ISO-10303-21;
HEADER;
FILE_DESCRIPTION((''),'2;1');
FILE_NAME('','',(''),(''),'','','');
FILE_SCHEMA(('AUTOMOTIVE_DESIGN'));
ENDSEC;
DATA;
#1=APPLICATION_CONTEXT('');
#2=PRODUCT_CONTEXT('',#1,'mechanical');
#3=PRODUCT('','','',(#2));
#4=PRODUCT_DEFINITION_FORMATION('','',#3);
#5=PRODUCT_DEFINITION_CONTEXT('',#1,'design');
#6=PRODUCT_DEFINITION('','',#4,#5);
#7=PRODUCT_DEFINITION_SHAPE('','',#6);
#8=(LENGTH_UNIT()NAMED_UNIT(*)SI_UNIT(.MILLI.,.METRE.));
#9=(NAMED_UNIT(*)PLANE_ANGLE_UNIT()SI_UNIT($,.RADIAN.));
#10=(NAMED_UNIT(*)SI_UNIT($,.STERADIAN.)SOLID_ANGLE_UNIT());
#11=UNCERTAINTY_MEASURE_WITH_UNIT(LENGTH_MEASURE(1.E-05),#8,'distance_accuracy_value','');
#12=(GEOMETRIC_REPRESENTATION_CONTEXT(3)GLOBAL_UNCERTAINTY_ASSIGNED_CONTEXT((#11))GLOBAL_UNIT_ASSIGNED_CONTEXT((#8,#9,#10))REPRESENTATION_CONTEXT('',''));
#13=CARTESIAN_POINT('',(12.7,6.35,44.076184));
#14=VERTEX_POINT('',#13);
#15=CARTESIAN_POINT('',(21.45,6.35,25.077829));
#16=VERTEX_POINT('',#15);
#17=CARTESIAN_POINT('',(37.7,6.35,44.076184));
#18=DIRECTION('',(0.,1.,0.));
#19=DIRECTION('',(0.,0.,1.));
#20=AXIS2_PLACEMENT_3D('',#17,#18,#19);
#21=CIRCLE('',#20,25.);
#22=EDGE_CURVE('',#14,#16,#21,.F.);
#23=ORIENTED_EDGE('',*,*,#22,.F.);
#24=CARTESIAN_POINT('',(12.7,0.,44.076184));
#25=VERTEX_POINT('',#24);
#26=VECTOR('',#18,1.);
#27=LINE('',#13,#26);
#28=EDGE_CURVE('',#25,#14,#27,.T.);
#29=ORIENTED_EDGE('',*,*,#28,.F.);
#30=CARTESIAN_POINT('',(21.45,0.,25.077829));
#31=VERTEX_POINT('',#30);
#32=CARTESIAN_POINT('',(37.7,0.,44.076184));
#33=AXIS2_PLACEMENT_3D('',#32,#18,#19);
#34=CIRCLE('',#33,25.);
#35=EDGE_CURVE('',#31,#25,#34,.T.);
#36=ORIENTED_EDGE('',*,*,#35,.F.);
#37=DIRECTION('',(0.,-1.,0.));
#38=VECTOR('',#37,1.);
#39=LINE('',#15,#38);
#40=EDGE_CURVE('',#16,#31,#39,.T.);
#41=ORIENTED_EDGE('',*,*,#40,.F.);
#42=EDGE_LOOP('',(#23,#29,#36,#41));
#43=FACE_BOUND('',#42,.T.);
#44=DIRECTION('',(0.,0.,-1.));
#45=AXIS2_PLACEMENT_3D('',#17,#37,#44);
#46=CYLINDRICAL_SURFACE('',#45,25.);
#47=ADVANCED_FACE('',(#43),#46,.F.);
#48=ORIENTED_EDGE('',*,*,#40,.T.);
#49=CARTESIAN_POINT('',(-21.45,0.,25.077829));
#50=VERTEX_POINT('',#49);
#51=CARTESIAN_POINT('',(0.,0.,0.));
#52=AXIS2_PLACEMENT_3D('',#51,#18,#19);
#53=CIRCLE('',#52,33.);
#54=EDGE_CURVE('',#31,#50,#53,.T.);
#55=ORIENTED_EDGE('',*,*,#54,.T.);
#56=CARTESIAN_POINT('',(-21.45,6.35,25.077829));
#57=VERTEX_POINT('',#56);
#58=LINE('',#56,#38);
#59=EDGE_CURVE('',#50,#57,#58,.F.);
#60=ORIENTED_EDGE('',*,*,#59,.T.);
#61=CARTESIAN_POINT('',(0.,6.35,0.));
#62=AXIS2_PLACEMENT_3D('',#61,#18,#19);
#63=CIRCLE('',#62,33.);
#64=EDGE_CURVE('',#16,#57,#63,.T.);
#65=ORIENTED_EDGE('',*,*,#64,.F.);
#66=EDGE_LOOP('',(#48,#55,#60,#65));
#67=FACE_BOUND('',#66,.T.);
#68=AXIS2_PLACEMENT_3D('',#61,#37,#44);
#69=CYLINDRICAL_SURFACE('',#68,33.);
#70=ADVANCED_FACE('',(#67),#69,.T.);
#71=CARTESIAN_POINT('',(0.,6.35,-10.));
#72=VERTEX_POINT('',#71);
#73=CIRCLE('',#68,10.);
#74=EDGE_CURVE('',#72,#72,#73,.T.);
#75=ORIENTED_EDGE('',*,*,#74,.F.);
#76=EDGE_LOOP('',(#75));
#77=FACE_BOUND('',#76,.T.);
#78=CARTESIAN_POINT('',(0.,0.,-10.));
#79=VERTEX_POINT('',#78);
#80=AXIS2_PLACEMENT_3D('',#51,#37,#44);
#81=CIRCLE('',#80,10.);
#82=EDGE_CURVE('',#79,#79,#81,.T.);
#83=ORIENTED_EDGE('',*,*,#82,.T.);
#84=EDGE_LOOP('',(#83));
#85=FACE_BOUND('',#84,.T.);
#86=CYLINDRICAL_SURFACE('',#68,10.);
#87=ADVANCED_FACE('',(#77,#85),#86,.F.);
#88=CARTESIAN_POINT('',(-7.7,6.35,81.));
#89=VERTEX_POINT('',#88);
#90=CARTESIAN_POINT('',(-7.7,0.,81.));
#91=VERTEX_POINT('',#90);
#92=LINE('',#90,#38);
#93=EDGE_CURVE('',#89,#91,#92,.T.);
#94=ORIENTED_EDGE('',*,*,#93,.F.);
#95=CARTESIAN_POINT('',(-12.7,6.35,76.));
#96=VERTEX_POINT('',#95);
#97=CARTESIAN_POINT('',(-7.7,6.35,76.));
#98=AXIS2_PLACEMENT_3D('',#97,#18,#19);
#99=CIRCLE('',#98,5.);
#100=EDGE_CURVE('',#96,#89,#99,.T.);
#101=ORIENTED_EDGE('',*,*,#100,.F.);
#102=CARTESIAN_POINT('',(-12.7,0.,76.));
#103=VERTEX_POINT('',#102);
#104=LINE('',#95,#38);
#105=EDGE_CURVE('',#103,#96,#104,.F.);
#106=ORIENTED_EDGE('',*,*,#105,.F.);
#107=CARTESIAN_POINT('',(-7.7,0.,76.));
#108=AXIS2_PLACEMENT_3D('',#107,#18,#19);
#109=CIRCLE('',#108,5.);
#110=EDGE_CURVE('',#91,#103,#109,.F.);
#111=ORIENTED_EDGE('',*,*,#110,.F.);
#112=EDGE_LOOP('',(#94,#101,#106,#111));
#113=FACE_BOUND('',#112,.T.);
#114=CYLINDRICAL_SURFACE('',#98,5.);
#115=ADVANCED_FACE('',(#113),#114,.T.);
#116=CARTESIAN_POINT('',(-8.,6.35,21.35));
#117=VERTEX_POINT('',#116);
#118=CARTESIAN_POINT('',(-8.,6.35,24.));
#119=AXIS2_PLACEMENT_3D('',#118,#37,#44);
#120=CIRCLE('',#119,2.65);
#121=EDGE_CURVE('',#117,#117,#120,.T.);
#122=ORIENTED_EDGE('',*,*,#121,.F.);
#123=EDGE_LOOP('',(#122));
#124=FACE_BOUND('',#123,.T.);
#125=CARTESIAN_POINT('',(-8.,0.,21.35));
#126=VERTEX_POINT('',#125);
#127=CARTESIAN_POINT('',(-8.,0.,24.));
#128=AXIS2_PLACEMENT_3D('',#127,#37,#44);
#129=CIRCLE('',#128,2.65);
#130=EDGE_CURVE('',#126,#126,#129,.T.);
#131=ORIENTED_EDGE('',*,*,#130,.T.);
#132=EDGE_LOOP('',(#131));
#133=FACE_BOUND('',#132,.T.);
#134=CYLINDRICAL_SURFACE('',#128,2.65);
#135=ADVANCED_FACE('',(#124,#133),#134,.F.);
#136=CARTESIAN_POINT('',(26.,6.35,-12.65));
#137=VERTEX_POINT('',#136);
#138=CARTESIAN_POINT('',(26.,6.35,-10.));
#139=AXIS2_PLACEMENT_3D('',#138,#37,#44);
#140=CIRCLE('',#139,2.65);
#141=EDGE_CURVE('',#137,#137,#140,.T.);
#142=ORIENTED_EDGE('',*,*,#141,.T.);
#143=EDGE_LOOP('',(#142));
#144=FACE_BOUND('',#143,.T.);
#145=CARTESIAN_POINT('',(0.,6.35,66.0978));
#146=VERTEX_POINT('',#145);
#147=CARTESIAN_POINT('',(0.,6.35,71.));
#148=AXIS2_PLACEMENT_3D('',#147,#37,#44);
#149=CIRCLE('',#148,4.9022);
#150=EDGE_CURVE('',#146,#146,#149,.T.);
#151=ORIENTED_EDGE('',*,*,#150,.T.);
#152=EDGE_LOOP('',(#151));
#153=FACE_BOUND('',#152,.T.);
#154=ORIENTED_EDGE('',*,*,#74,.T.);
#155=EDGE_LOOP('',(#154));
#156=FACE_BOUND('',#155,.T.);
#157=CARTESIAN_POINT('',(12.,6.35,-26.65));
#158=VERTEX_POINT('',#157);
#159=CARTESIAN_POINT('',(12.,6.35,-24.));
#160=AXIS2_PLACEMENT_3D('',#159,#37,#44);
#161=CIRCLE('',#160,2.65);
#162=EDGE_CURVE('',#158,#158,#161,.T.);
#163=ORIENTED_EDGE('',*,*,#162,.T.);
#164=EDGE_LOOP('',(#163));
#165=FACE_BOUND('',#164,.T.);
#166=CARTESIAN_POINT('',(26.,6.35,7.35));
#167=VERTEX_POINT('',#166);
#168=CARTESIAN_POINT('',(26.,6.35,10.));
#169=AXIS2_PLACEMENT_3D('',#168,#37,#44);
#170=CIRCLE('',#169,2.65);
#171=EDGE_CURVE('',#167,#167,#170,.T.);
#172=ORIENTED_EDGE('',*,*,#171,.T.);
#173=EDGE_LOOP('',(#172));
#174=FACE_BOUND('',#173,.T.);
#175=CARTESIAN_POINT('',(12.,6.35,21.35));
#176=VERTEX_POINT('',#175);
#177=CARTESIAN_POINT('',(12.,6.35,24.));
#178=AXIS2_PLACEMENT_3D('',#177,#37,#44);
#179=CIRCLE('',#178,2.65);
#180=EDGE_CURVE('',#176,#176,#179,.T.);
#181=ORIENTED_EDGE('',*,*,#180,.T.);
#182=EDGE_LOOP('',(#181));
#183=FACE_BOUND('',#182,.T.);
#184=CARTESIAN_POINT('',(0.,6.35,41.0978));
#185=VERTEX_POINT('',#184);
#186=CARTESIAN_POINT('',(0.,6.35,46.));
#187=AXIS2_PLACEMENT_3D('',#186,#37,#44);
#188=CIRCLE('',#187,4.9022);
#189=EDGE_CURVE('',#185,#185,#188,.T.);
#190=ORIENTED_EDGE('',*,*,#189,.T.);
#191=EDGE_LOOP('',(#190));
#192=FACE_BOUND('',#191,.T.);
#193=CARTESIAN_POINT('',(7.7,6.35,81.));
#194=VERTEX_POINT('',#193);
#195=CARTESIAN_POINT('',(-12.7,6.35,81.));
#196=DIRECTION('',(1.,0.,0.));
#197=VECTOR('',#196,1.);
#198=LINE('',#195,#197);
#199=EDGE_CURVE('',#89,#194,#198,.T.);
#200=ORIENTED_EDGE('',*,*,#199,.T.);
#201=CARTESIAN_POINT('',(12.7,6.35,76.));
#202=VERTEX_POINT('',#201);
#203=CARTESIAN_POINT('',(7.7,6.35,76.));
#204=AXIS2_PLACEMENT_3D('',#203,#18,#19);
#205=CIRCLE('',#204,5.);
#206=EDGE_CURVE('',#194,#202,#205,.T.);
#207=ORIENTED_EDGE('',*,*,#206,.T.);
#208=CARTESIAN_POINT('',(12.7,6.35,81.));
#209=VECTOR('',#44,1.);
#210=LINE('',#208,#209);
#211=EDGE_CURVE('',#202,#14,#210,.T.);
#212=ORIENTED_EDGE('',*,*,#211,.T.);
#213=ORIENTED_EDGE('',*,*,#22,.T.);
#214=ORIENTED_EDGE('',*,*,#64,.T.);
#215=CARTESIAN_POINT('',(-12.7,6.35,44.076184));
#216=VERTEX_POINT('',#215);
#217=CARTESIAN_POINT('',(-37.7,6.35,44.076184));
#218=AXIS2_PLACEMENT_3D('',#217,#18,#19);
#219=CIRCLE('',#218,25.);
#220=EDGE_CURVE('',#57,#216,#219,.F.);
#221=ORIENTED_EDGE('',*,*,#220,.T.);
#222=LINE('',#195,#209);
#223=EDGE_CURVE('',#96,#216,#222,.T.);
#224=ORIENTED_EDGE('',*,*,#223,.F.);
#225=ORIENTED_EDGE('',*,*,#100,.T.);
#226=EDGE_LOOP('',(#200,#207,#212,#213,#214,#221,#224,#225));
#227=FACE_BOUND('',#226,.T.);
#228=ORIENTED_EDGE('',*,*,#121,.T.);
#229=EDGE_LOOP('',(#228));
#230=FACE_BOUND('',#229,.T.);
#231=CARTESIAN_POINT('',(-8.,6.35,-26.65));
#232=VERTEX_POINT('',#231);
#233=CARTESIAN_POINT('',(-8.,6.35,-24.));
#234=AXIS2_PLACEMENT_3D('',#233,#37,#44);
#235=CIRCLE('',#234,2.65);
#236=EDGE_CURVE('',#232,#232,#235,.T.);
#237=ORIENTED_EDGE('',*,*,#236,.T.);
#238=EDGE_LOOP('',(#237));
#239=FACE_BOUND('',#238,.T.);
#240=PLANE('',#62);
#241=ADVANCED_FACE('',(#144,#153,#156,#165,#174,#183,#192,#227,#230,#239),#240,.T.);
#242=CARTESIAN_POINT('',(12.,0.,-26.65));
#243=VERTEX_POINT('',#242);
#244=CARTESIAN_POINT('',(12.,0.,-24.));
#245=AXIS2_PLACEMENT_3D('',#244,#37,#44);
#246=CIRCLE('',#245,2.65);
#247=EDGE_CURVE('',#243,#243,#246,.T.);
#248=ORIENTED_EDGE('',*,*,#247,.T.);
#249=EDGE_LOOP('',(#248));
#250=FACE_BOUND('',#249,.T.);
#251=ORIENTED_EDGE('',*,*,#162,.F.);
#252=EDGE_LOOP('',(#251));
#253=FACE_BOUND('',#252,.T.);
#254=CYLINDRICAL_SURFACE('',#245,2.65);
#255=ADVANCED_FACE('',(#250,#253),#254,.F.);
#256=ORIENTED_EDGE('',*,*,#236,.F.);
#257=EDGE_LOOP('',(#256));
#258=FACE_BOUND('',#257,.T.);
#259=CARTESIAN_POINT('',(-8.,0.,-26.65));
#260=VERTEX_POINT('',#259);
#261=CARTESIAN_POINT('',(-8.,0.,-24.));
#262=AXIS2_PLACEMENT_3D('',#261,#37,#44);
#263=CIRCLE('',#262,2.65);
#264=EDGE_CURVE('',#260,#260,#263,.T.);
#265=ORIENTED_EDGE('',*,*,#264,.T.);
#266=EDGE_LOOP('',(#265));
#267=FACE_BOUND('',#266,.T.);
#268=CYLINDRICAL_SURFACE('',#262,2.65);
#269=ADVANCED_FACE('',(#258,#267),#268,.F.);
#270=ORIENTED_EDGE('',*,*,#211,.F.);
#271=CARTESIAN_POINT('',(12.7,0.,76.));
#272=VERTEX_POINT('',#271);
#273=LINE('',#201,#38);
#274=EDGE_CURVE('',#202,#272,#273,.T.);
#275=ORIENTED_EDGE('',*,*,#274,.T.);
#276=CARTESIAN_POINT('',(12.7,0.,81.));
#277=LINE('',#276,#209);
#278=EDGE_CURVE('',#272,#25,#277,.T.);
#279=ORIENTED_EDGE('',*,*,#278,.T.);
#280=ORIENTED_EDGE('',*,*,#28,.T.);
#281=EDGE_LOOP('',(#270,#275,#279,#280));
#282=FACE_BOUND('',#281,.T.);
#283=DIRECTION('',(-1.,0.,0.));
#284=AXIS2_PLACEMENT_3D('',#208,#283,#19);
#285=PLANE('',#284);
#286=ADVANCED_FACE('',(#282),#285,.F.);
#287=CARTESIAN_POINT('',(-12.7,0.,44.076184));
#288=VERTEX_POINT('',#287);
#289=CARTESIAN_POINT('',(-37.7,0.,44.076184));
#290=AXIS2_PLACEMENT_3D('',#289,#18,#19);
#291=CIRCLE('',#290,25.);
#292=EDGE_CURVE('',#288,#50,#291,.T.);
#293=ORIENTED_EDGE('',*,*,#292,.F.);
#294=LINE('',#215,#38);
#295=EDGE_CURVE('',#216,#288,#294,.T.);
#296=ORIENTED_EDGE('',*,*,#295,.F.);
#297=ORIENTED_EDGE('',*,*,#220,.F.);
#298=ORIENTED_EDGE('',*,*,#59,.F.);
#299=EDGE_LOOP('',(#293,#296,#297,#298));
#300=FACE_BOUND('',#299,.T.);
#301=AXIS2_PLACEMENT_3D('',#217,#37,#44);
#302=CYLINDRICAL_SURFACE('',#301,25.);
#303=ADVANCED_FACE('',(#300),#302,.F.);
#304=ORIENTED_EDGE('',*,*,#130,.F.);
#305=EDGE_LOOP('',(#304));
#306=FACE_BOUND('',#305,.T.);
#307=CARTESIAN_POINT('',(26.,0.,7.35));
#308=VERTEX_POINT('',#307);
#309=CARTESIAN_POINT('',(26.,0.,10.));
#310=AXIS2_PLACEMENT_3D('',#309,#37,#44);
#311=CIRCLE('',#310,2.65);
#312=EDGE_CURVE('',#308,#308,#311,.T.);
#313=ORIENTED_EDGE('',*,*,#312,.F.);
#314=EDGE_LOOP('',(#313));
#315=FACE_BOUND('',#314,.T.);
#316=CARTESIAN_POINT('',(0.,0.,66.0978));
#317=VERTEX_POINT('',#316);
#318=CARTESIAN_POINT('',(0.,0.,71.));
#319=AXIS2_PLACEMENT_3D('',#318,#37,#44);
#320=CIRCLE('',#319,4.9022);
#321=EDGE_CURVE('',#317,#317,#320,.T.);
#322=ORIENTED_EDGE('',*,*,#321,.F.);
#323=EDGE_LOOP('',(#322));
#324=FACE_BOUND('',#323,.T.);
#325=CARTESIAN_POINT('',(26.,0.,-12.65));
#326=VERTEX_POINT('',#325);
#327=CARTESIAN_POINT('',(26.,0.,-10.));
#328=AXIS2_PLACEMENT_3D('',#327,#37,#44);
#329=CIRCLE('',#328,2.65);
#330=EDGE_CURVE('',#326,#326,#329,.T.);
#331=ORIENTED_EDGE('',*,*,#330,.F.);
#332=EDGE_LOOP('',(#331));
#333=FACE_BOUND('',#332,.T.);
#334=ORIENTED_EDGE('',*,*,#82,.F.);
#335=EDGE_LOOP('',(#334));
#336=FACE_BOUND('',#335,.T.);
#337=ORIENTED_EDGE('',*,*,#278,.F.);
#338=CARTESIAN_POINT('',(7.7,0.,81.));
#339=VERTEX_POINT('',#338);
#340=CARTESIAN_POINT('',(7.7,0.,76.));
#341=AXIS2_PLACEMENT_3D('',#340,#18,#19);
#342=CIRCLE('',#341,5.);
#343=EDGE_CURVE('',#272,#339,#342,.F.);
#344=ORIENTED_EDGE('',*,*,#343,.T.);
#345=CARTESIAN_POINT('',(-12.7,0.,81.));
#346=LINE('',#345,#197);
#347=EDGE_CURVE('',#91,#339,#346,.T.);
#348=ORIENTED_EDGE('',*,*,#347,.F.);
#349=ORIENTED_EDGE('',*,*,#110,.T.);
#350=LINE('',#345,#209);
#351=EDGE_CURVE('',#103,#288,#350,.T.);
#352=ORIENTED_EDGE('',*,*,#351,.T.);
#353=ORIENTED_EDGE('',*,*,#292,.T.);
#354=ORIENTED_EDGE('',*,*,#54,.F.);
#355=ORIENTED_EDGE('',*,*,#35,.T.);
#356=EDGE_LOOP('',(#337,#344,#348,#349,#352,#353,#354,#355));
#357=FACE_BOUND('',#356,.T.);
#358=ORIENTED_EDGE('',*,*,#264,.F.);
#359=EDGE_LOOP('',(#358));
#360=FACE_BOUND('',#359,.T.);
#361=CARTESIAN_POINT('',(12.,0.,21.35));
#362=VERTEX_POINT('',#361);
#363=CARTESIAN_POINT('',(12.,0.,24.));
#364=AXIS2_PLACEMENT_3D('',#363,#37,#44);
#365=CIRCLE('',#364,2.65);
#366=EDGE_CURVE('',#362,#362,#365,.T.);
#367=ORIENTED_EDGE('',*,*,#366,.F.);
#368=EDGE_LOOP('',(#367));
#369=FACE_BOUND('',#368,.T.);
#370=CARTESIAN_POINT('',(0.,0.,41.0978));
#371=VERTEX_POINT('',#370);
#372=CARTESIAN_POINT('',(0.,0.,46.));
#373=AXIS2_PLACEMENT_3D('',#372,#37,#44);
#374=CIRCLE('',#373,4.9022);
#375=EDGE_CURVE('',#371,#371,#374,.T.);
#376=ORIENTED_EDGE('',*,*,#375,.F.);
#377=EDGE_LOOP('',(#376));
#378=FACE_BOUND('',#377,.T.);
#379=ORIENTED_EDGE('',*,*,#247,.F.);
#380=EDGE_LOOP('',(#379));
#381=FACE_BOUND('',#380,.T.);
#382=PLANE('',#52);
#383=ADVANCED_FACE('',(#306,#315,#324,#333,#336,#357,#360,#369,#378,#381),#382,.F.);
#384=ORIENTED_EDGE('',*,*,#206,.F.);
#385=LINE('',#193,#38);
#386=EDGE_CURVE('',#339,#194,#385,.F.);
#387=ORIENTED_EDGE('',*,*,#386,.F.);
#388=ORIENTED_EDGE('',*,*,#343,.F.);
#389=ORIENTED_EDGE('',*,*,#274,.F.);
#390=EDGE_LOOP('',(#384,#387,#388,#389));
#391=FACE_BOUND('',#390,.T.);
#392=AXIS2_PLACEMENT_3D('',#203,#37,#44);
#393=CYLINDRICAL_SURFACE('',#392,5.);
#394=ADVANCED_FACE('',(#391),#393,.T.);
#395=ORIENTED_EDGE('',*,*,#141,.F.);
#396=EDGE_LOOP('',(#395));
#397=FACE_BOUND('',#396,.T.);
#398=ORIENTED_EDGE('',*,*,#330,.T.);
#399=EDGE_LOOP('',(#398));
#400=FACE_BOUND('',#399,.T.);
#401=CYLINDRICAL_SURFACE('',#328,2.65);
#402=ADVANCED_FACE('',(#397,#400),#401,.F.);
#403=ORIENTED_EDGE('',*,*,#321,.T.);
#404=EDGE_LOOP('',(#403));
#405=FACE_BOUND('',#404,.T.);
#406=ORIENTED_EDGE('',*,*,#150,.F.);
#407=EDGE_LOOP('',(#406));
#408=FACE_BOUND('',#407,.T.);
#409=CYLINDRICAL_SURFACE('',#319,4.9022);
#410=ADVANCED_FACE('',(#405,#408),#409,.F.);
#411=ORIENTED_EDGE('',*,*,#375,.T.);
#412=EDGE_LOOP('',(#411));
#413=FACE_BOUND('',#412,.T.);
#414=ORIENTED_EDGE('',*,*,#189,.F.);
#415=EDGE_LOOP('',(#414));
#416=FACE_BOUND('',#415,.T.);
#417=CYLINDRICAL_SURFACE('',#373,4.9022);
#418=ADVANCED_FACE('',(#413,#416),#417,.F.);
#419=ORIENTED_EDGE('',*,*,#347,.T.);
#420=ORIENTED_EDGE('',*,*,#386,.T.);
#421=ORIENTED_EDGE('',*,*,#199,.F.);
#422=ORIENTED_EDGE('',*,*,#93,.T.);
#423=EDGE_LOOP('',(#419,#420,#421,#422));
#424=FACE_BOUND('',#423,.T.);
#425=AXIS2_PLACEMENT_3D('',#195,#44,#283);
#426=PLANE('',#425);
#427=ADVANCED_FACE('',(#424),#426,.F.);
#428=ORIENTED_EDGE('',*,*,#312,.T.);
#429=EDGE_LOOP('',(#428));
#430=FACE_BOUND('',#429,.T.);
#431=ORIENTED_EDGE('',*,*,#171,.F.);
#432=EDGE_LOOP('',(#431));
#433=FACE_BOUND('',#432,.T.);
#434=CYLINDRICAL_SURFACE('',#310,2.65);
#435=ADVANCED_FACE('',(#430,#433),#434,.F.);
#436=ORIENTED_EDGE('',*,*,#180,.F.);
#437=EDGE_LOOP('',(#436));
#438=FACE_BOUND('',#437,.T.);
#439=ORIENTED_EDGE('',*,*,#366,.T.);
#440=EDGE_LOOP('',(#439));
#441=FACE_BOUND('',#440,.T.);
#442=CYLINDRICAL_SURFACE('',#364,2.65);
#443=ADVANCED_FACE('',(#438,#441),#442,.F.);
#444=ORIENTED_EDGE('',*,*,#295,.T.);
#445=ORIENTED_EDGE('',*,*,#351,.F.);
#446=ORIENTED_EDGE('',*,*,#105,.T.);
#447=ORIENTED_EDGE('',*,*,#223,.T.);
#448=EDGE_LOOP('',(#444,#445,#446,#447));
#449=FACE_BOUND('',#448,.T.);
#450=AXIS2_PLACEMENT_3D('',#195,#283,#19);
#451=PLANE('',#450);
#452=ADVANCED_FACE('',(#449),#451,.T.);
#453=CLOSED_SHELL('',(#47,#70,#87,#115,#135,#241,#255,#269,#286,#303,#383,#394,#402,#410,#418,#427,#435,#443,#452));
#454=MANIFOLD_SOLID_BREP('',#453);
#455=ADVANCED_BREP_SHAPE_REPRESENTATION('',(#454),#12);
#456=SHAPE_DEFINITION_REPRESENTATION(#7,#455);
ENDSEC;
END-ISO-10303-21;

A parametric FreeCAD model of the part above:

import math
import FreeCAD as App
import Part
import Sketcher
Q = App.Units.Quantity


def edges_at(feature, points):
    """Names of the edges that pass closest to the given points."""
    edges = feature.Shape.Edges
    near = lambda p: min(range(len(edges)), key=lambda i: edges[i].distToShape(Part.Vertex(*p))[0])
    return sorted({f"Edge{near(p) + 1}" for p in points})

doc = App.newDocument("Part")
body = doc.addObject("PartDesign::Body", "Body")

sketch1 = body.newObject("Sketcher::SketchObject", "Sketch")
sketch1.AttachmentSupport = (doc.getObject("XZ_Plane"), [""])
sketch1.MapMode = "FlatFace"
sketch1.addGeometry(Part.LineSegment(App.Vector(-13, 81, 0), App.Vector(13, 81, 0)), False)
sketch1.addGeometry(Part.LineSegment(App.Vector(13, 81, 0), App.Vector(13, 30, 0)), False)
sketch1.addGeometry(Part.ArcOfCircle(Part.Circle(App.Vector(0, 0, 0), App.Vector(0, 0, 1), 33), math.radians(113), math.radians(427)), False)
sketch1.addGeometry(Part.LineSegment(App.Vector(-13, 30, 0), App.Vector(-13, 81, 0)), False)
sketch1.addConstraint(Sketcher.Constraint("Coincident", 0, 2, 1, 1))
sketch1.addConstraint(Sketcher.Constraint("Coincident", 1, 2, 2, 2))
sketch1.addConstraint(Sketcher.Constraint("Coincident", 2, 1, 3, 1))
sketch1.addConstraint(Sketcher.Constraint("Coincident", 3, 2, 0, 1))
sketch1.addConstraint(Sketcher.Constraint("Horizontal", 0))
sketch1.addConstraint(Sketcher.Constraint("Vertical", 1))
sketch1.addConstraint(Sketcher.Constraint("Vertical", 3))
sketch1.addConstraint(Sketcher.Constraint("Coincident", 2, 3, -1, 1))
sketch1.addConstraint(Sketcher.Constraint("Horizontal", 1, 2, 2, 1))
sketch1.addConstraint(Sketcher.Constraint("Radius", 2, Q("33 mm")))
sketch1.addConstraint(Sketcher.Constraint("DistanceX", 0, 1, 0, 2, Q("25.4 mm")))
sketch1.addConstraint(Sketcher.Constraint("DistanceY", -1, 1, 0, 2, Q("81 mm")))
pad1 = body.newObject("PartDesign::Pad", "Pad")
pad1.Profile = sketch1
pad1.Length = 6.35
pad1.Reversed = True

sketch2 = body.newObject("Sketcher::SketchObject", "Sketch001")
sketch2.AttachmentSupport = (doc.getObject("XZ_Plane"), [""])
sketch2.MapMode = "FlatFace"
sketch2.addGeometry(Part.Circle(App.Vector(0, 0, 0), App.Vector(0, 0, 1), 10), False)
sketch2.addConstraint(Sketcher.Constraint("Coincident", 0, 3, -1, 1))
sketch2.addConstraint(Sketcher.Constraint("Diameter", 0, Q("20 mm")))
pocket1 = body.newObject("PartDesign::Pocket", "Pocket")
pocket1.Profile = sketch2
pocket1.Type = "ThroughAll"

sketch3 = body.newObject("Sketcher::SketchObject", "Sketch002")
sketch3.AttachmentSupport = (doc.getObject("XZ_Plane"), [""])
sketch3.MapMode = "FlatFace"
sketch3.addGeometry(Part.Circle(App.Vector(0, 46, 0), App.Vector(0, 0, 1), 4.9), False)
sketch3.addGeometry(Part.Circle(App.Vector(0, 71, 0), App.Vector(0, 0, 1), 4.9), False)
sketch3.addConstraint(Sketcher.Constraint("Equal", 0, 1))
sketch3.addConstraint(Sketcher.Constraint("PointOnObject", 0, 3, -2))
sketch3.addConstraint(Sketcher.Constraint("PointOnObject", 1, 3, -2))
sketch3.addConstraint(Sketcher.Constraint("DistanceY", -1, 1, 0, 3, Q("46 mm")))
sketch3.addConstraint(Sketcher.Constraint("DistanceY", -1, 1, 1, 3, Q("71 mm")))
sketch3.addConstraint(Sketcher.Constraint("Diameter", 0, Q("9.8044 mm")))
doc.recompute()
hole = body.newObject("PartDesign::Hole", "Hole")
hole.Profile = sketch3
hole.ThreadType = "None"
hole.Diameter = 9.8044
hole.DepthType = "ThroughAll"
doc.recompute()

fillet = body.newObject("PartDesign::Fillet", "Fillet")
fillet.Base = (hole, edges_at(hole, [(-12.7, 3.175, 30.458), (12.7, 3.175, 30.458)]))
fillet.Radius = 25

sketch4 = body.newObject("Sketcher::SketchObject", "Sketch003")
sketch4.AttachmentSupport = (doc.getObject("XZ_Plane"), [""])
sketch4.MapMode = "FlatFace"
sketch4.addGeometry(Part.Circle(App.Vector(-8, -24, 0), App.Vector(0, 0, 1), 2.6), False)
sketch4.addGeometry(Part.Circle(App.Vector(12, -24, 0), App.Vector(0, 0, 1), 2.6), False)
sketch4.addGeometry(Part.Circle(App.Vector(26, -10, 0), App.Vector(0, 0, 1), 2.6), False)
sketch4.addGeometry(Part.Circle(App.Vector(26, 10, 0), App.Vector(0, 0, 1), 2.6), False)
sketch4.addGeometry(Part.Circle(App.Vector(12, 24, 0), App.Vector(0, 0, 1), 2.6), False)
sketch4.addGeometry(Part.Circle(App.Vector(-8, 24, 0), App.Vector(0, 0, 1), 2.6), False)
sketch4.addConstraint(Sketcher.Constraint("Equal", 0, 1))
sketch4.addConstraint(Sketcher.Constraint("Equal", 1, 2))
sketch4.addConstraint(Sketcher.Constraint("Equal", 2, 3))
sketch4.addConstraint(Sketcher.Constraint("Equal", 3, 4))
sketch4.addConstraint(Sketcher.Constraint("Equal", 4, 5))
sketch4.addConstraint(Sketcher.Constraint("Symmetric", 2, 3, 3, 3, -1))
sketch4.addConstraint(Sketcher.Constraint("Symmetric", 1, 3, 4, 3, -1))
sketch4.addConstraint(Sketcher.Constraint("Symmetric", 0, 3, 5, 3, -1))
sketch4.addConstraint(Sketcher.Constraint("Horizontal", 0, 3, 1, 3))
sketch4.addConstraint(Sketcher.Constraint("Diameter", 0, Q("5.3 mm")))
sketch4.addConstraint(Sketcher.Constraint("DistanceX", 0, 3, -1, 1, Q("8 mm")))
sketch4.addConstraint(Sketcher.Constraint("DistanceY", 0, 3, -1, 1, Q("24 mm")))
sketch4.addConstraint(Sketcher.Constraint("DistanceX", -1, 1, 1, 3, Q("12 mm")))
sketch4.addConstraint(Sketcher.Constraint("DistanceX", -1, 1, 2, 3, Q("26 mm")))
sketch4.addConstraint(Sketcher.Constraint("DistanceY", 2, 3, -1, 1, Q("10 mm")))
doc.recompute()
hole2 = body.newObject("PartDesign::Hole", "Hole001")
hole2.Profile = sketch4
hole2.ThreadType = "None"
hole2.Diameter = 5.3
hole2.DepthType = "ThroughAll"
doc.recompute()

fillet2 = body.newObject("PartDesign::Fillet", "Fillet001")
fillet2.Base = (hole2, edges_at(hole2, [(12.7, 3.175, 81), (-12.7, 3.175, 81)]))
fillet2.Radius = 5

doc.recompute()
